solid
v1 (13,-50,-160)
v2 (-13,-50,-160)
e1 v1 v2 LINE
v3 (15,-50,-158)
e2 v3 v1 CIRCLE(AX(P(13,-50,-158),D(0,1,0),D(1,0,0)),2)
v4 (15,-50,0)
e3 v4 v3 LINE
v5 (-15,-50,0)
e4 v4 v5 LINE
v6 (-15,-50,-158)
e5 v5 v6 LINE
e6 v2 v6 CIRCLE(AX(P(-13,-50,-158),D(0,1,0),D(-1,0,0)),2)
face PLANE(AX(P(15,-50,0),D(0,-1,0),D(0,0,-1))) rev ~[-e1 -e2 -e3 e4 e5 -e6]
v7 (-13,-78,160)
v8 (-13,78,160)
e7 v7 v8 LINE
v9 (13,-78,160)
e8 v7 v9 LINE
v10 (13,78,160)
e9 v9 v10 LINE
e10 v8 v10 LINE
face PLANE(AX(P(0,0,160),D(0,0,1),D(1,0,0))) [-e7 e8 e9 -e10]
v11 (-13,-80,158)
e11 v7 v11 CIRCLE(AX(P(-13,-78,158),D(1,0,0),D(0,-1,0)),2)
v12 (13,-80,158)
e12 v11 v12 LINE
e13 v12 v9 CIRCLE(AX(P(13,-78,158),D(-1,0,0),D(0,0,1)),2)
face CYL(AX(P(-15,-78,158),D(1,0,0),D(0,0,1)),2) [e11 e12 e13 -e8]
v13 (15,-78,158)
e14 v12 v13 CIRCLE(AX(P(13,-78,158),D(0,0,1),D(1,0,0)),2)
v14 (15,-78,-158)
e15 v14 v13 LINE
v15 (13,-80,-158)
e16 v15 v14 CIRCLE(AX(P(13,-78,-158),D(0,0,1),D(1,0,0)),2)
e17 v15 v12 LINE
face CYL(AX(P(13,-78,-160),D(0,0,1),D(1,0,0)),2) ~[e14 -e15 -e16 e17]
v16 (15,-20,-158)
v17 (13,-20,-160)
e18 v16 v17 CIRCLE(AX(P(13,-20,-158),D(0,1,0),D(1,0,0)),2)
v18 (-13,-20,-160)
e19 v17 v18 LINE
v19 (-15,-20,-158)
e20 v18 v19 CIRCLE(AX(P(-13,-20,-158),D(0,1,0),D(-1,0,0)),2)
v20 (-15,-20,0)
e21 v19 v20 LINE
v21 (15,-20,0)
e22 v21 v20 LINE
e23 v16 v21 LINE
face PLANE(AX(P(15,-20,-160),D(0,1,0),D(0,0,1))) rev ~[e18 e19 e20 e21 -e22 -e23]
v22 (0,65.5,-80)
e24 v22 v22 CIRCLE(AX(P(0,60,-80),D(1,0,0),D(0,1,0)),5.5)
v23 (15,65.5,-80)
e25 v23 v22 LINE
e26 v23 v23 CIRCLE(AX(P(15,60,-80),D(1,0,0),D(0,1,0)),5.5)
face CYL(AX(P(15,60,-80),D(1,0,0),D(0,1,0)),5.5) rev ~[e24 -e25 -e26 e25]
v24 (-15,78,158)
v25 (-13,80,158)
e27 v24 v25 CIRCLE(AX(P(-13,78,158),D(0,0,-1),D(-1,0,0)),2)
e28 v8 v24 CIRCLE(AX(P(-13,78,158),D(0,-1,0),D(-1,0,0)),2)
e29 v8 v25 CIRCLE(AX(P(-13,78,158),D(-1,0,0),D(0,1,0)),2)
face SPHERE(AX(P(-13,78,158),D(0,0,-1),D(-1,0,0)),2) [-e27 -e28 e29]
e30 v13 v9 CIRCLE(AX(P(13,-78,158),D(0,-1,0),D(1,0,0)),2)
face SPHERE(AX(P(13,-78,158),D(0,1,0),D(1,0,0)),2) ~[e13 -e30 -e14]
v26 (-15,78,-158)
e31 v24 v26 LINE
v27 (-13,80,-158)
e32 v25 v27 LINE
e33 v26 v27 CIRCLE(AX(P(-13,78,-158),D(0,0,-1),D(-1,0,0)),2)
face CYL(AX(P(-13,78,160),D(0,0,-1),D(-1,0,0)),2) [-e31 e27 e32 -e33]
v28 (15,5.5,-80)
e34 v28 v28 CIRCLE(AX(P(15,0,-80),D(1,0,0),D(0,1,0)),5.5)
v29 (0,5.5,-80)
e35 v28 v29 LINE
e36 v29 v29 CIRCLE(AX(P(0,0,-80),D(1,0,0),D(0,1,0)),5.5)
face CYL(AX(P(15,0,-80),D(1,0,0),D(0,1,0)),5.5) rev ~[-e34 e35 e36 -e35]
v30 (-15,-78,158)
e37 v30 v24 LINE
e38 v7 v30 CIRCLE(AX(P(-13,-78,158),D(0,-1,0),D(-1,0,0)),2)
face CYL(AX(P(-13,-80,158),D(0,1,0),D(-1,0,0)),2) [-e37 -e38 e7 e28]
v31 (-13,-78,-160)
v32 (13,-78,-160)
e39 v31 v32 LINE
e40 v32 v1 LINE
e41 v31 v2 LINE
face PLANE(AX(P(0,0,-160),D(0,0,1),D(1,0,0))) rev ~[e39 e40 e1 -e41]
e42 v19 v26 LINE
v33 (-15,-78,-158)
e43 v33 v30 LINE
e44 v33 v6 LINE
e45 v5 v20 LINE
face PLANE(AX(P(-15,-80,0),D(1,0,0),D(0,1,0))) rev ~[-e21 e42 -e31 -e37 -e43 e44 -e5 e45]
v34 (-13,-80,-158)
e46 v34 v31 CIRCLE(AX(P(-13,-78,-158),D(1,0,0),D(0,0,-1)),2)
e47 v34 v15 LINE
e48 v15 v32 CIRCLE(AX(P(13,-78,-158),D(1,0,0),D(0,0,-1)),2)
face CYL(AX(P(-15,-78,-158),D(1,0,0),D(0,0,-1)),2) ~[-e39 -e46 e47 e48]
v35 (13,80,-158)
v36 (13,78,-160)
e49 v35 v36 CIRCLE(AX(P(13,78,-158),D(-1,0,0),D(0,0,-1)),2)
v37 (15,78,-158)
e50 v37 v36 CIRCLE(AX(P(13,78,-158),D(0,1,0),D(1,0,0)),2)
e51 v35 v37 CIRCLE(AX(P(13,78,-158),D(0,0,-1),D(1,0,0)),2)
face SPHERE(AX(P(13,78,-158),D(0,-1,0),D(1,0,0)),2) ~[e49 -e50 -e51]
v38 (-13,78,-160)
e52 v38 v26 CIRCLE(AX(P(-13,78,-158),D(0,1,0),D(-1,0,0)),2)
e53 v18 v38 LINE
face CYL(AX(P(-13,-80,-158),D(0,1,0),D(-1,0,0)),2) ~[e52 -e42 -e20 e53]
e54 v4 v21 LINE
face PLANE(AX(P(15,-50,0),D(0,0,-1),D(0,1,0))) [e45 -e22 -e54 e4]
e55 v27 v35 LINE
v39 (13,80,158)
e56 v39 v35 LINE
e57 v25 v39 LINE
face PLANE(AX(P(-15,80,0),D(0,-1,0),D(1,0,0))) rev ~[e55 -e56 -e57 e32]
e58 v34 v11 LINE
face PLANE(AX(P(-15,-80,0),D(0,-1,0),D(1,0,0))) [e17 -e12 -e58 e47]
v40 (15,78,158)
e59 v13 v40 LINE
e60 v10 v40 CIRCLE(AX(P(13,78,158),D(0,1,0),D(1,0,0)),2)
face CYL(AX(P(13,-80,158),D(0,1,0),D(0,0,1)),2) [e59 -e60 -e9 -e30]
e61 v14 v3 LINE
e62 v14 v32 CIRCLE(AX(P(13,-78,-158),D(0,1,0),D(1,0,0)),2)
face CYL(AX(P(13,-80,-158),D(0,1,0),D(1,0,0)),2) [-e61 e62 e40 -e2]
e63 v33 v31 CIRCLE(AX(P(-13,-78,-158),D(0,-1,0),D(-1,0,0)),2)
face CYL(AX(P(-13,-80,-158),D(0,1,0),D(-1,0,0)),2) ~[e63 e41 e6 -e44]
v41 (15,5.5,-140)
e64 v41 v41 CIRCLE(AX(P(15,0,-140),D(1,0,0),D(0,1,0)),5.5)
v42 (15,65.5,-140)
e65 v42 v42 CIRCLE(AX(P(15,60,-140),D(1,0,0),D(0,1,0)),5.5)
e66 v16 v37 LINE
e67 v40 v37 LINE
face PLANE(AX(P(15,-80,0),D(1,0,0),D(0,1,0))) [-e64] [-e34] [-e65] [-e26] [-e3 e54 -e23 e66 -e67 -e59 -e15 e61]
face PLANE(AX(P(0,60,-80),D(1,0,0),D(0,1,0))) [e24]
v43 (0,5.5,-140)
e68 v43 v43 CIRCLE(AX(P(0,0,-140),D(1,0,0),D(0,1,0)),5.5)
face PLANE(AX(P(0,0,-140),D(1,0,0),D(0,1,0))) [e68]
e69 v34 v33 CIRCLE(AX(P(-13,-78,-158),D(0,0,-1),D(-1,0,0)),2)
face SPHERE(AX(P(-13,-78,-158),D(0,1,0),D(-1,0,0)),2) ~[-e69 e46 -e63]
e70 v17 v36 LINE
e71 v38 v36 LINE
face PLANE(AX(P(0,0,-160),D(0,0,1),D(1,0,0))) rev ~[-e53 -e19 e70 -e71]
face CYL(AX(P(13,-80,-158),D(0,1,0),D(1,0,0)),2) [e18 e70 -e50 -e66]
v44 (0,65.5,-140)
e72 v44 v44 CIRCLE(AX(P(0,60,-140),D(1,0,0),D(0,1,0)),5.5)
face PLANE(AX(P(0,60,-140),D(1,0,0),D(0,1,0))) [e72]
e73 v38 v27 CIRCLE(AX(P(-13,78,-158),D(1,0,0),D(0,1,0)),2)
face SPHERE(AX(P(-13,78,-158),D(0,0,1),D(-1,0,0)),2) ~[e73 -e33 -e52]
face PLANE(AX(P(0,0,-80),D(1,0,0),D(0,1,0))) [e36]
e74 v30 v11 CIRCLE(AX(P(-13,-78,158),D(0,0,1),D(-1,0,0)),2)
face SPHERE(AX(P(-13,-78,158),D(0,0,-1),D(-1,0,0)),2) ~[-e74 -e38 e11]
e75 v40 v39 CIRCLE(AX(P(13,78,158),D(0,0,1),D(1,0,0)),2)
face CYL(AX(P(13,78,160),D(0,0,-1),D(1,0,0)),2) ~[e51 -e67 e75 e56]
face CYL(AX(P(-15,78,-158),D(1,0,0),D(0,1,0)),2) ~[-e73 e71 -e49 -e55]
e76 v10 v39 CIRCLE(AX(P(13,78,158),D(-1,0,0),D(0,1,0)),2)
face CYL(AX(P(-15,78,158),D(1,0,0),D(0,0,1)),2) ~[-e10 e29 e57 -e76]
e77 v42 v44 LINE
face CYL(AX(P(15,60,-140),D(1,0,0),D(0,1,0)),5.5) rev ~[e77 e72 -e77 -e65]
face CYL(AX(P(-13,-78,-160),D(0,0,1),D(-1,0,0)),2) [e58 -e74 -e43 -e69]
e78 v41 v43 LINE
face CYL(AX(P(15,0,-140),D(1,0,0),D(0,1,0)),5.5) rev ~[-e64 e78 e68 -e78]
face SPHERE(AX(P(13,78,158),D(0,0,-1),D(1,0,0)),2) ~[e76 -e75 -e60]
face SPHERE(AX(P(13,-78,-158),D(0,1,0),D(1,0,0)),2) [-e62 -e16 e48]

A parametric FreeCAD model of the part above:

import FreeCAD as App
import Part
import Sketcher
from FreeCAD import Vector


def add_polygon(sketch, points):
    """Adds a closed chain of lines whose ends are joined by coincident constraints."""
    first, n = sketch.GeometryCount, len(points)
    for a, b in zip(points, points[1:] + points[:1]):
        sketch.addGeometry(Part.LineSegment(App.Vector(*a, 0), App.Vector(*b, 0)), False)
    for i in range(n):
        sketch.addConstraint(Sketcher.Constraint("Coincident", first + i, 2, first + (i + 1) % n, 1))

doc = App.newDocument("Part")
body = doc.addObject("PartDesign::Body", "Body")

sketch1 = doc.addObject("Sketcher::SketchObject", "Sketch")
body.addObject(sketch1)
sketch1.AttachmentSupport = (doc.XY_Plane, [""])
sketch1.MapMode = "FlatFace"
add_polygon(sketch1, [(-15, 80), (-15, -80), (15, -80), (15, 80)])
sketch1.addConstraint(Sketcher.Constraint("Vertical", 0))
sketch1.addConstraint(Sketcher.Constraint("Horizontal", 1))
sketch1.addConstraint(Sketcher.Constraint("Vertical", 2))
sketch1.addConstraint(Sketcher.Constraint("Horizontal", 3))
sketch1.addConstraint(Sketcher.Constraint("Symmetric", 0, 2, 2, 2, -1, 1))
sketch1.addConstraint(Sketcher.Constraint("DistanceX", 1, 1, 1, 2, 30.0))
sketch1.addConstraint(Sketcher.Constraint("DistanceY", 0, 2, 0, 1, 160.0))
pad1 = doc.addObject("PartDesign::Pad", "Pad")
body.addObject(pad1)
pad1.Profile = sketch1
pad1.Length = 320
pad1.Midplane = True
doc.recompute()

fillet = doc.addObject("PartDesign::Fillet", "Fillet")
body.addObject(fillet)
fillet.Base = (pad1, ["Edge1"])
fillet.UseAllEdges = True
fillet.Radius = 2

sketch2 = doc.addObject("Sketcher::SketchObject", "Sketch001")
body.addObject(sketch2)
sketch2.AttachmentSupport = (doc.YZ_Plane, [""])
sketch2.MapMode = "FlatFace"
sketch2.AttachmentOffset = App.Placement(Vector(0, 0, 15), App.Rotation())
add_polygon(sketch2, [(-50, 0), (-50, -160), (-20, -160), (-20, 0)])
sketch2.addConstraint(Sketcher.Constraint("Vertical", 0))
sketch2.addConstraint(Sketcher.Constraint("Horizontal", 1))
sketch2.addConstraint(Sketcher.Constraint("Vertical", 2))
sketch2.addConstraint(Sketcher.Constraint("Horizontal", 3))
sketch2.addConstraint(Sketcher.Constraint("PointOnObject", 2, 2, -1))
sketch2.addConstraint(Sketcher.Constraint("DistanceX", 1, 1, 1, 2, 30.0))
sketch2.addConstraint(Sketcher.Constraint("DistanceY", 0, 2, 0, 1, 160.0))
sketch2.addConstraint(Sketcher.Constraint("DistanceX", 0, 2, -1, 1, 50.0))
pocket1 = doc.addObject("PartDesign::Pocket", "Pocket")
body.addObject(pocket1)
pocket1.Profile = sketch2
pocket1.Type = "ThroughAll"

sketch3 = doc.addObject("Sketcher::SketchObject", "Sketch002")
body.addObject(sketch3)
sketch3.AttachmentSupport = (doc.YZ_Plane, [""])
sketch3.MapMode = "FlatFace"
sketch3.AttachmentOffset = App.Placement(Vector(0, 0, 15), App.Rotation())
sketch3.addGeometry(Part.Circle(Vector(60, -140, 0), Vector(0, 0, 1), 6), False)
sketch3.addGeometry(Part.Circle(Vector(0, -140, 0), Vector(0, 0, 1), 6), False)
sketch3.addGeometry(Part.Circle(Vector(0, -80, 0), Vector(0, 0, 1), 6), False)
sketch3.addGeometry(Part.Circle(Vector(60, -80, 0), Vector(0, 0, 1), 6), False)
sketch3.addConstraint(Sketcher.Constraint("Equal", 0, 1))
sketch3.addConstraint(Sketcher.Constraint("Equal", 1, 2))
sketch3.addConstraint(Sketcher.Constraint("Equal", 2, 3))
sketch3.addConstraint(Sketcher.Constraint("PointOnObject", 1, 3, -2))
sketch3.addConstraint(Sketcher.Constraint("PointOnObject", 2, 3, -2))
sketch3.addConstraint(Sketcher.Constraint("Horizontal", 0, 3, 1, 3))
sketch3.addConstraint(Sketcher.Constraint("Horizontal", 2, 3, 3, 3))
sketch3.addConstraint(Sketcher.Constraint("Vertical", 0, 3, 3, 3))
sketch3.addConstraint(Sketcher.Constraint("Diameter", 0, 11.0))
sketch3.addConstraint(Sketcher.Constraint("DistanceX", -1, 1, 0, 3, 60.0))
sketch3.addConstraint(Sketcher.Constraint("DistanceY", 0, 3, -1, 1, 140.0))
sketch3.addConstraint(Sketcher.Constraint("DistanceY", 2, 3, -1, 1, 80.0))
pocket2 = doc.addObject("PartDesign::Pocket", "Pocket001")
body.addObject(pocket2)
pocket2.Profile = sketch3
pocket2.Length = 15

doc.recompute()
